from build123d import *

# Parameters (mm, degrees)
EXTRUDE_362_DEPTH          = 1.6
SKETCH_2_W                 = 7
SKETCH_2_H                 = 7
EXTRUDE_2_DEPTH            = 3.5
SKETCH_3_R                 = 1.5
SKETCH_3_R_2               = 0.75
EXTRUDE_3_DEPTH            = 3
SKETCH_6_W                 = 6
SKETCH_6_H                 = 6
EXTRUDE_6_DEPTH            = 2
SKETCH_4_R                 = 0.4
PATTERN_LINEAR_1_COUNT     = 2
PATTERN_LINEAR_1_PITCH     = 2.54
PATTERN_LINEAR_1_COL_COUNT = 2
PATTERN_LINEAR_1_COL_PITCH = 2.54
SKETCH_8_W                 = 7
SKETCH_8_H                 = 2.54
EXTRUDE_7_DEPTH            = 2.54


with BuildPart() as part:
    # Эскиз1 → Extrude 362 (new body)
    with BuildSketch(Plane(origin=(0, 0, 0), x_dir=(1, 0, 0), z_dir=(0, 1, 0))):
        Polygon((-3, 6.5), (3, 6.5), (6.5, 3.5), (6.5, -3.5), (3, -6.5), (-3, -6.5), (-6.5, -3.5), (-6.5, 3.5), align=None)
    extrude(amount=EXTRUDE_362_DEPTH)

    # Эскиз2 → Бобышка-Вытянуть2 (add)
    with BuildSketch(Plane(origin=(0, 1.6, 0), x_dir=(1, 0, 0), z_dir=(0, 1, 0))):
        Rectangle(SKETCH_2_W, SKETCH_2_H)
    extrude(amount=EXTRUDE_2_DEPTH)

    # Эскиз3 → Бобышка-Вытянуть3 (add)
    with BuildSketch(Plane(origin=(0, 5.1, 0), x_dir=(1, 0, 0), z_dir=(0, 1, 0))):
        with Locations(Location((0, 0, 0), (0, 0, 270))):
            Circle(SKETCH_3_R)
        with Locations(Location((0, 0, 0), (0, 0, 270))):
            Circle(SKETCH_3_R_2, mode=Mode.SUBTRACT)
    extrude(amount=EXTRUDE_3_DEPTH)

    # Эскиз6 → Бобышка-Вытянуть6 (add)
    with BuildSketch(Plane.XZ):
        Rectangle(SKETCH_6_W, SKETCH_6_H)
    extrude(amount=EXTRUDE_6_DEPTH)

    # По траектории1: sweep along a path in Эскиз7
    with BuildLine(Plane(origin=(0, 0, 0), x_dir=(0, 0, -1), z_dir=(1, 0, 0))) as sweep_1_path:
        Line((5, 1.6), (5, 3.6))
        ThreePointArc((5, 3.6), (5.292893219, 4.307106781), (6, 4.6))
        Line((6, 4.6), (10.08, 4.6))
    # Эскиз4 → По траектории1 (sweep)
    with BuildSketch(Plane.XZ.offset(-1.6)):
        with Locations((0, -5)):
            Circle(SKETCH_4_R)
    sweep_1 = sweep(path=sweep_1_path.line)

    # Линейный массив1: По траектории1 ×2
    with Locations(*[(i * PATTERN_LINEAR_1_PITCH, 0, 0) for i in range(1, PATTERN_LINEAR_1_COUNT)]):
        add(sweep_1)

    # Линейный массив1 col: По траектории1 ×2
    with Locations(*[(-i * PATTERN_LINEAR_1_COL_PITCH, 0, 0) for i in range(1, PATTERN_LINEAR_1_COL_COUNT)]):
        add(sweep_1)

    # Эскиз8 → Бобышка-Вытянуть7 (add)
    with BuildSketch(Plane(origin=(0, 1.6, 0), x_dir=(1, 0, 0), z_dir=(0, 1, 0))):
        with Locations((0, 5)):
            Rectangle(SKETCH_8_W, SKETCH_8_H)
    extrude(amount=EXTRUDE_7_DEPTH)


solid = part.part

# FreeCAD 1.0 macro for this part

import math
import FreeCAD as App
import Part
import Sketcher

V = App.Vector

doc = App.newDocument("Part")
params = doc.addObject("Spreadsheet::Sheet", "Params")
for row, (alias, value) in enumerate([
    ("sketch1_width", "6 mm"),
    ("sketch1_height", "7 mm"),
    ("pad1_length", "1.6 mm"),
    ("sketch2_width", "7 mm"),
    ("pad2_length", "3.5 mm"),
    ("sketch3_diameter", "3 mm"),
    ("sketch3_diameter2", "1.5 mm"),
    ("pad3_length", "3 mm"),
    ("sketch4_width", "6 mm"),
    ("pad4_length", "2 mm"),
    ("sketch5_diameter", "0.8 mm"),
    ("sketch6_radius", "1 mm"),
    ("sketch6_width", "2 mm"),
    ("sketch6_height", "4.08 mm"),
    ("linearpattern_pitch", "2.54 mm"),
    ("linearpattern2_pitch", "2.54 mm"),
    ("sketch7_width", "7 mm"),
    ("sketch7_height", "2.54 mm"),
    ("pad5_length", "2.54 mm"),
], start=1):
    params.set(f"A{row}", alias)
    params.set(f"B{row}", "=" + value)
    params.setAlias(f"B{row}", alias)

body = doc.addObject("PartDesign::Body", "Body")

# Sketch on XZ plane
sketch1 = body.newObject("Sketcher::SketchObject", "Sketch")
sketch1.AttachmentSupport = (doc.getObject("XZ_Plane"), [""])
sketch1.MapMode = "FlatFace"
sketch1.addGeometry(Part.LineSegment(V(3, -6.5, 0), V(-3, -6.5, 0)), False)
sketch1.addGeometry(Part.LineSegment(V(-3, -6.5, 0), V(-6.5, -3.5, 0)), False)
sketch1.addGeometry(Part.LineSegment(V(-6.5, -3.5, 0), V(-6.5, 3.5, 0)), False)
sketch1.addGeometry(Part.LineSegment(V(-6.5, 3.5, 0), V(-3, 6.5, 0)), False)
sketch1.addGeometry(Part.LineSegment(V(-3, 6.5, 0), V(3, 6.5, 0)), False)
sketch1.addGeometry(Part.LineSegment(V(3, 6.5, 0), V(6.5, 3.5, 0)), False)
sketch1.addGeometry(Part.LineSegment(V(6.5, 3.5, 0), V(6.5, -3.5, 0)), False)
sketch1.addGeometry(Part.LineSegment(V(6.5, -3.5, 0), V(3, -6.5, 0)), False)
sketch1.addConstraint(Sketcher.Constraint("Coincident", 0, 2, 1, 1))
sketch1.addConstraint(Sketcher.Constraint("Coincident", 1, 2, 2, 1))
sketch1.addConstraint(Sketcher.Constraint("Coincident", 2, 2, 3, 1))
sketch1.addConstraint(Sketcher.Constraint("Coincident", 3, 2, 4, 1))
sketch1.addConstraint(Sketcher.Constraint("Coincident", 4, 2, 5, 1))
sketch1.addConstraint(Sketcher.Constraint("Coincident", 5, 2, 6, 1))
sketch1.addConstraint(Sketcher.Constraint("Coincident", 6, 2, 7, 1))
sketch1.addConstraint(Sketcher.Constraint("Coincident", 7, 2, 0, 1))
sketch1.addConstraint(Sketcher.Constraint("Horizontal", 0))
sketch1.addConstraint(Sketcher.Constraint("Vertical", 2))
sketch1.addConstraint(Sketcher.Constraint("Horizontal", 4))
sketch1.addConstraint(Sketcher.Constraint("Vertical", 6))
sketch1.addConstraint(Sketcher.Constraint("Symmetric", 0, 2, 4, 2, -1, 1))
sketch1.addConstraint(Sketcher.Constraint("Symmetric", 1, 2, 5, 2, -1, 1))
sketch1.addConstraint(Sketcher.Constraint("Parallel", 3, 7))
sketch1.addConstraint(Sketcher.Constraint("Horizontal", 2, 2, 5, 2))
sketch1.addConstraint(Sketcher.Constraint("Horizontal", 1, 2, 6, 2))
sketch1.addConstraint(Sketcher.Constraint("Vertical", 0, 2, 3, 2))
sketch1.addConstraint(Sketcher.Constraint("DistanceX", 0, 2, 0, 1, 6.0))
sketch1.addConstraint(Sketcher.Constraint("DistanceY", 2, 1, 2, 2, 7.0))
sketch1.addConstraint(Sketcher.Constraint("DistanceY", 0, 2, 1, 2, 3.0))
sketch1.addConstraint(Sketcher.Constraint("DistanceX", 2, 2, 5, 2, 13.0))
sketch1.setExpression("Constraints[18]", "Params.sketch1_width")
sketch1.setExpression("Constraints[19]", "Params.sketch1_height")
pad1 = body.newObject("PartDesign::Pad", "Pad")
pad1.Profile = sketch1
pad1.setExpression("Length", "Params.pad1_length")
pad1.Reversed = True

# Sketch on XZ plane
sketch2 = body.newObject("Sketcher::SketchObject", "Sketch001")
sketch2.AttachmentSupport = (doc.getObject("XZ_Plane"), [""])
sketch2.MapMode = "FlatFace"
sketch2.AttachmentOffset = App.Placement(V(0, 0, -1.6), App.Rotation())
sketch2.addGeometry(Part.LineSegment(V(-4, -4, 0), V(-4, 4, 0)), False)
sketch2.addGeometry(Part.LineSegment(V(-4, 4, 0), V(4, 4, 0)), False)
sketch2.addGeometry(Part.LineSegment(V(4, 4, 0), V(4, -4, 0)), False)
sketch2.addGeometry(Part.LineSegment(V(4, -4, 0), V(-4, -4, 0)), False)
sketch2.addConstraint(Sketcher.Constraint("Coincident", 0, 2, 1, 1))
sketch2.addConstraint(Sketcher.Constraint("Coincident", 1, 2, 2, 1))
sketch2.addConstraint(Sketcher.Constraint("Coincident", 2, 2, 3, 1))
sketch2.addConstraint(Sketcher.Constraint("Coincident", 3, 2, 0, 1))
sketch2.addConstraint(Sketcher.Constraint("Vertical", 0))
sketch2.addConstraint(Sketcher.Constraint("Horizontal", 1))
sketch2.addConstraint(Sketcher.Constraint("Vertical", 2))
sketch2.addConstraint(Sketcher.Constraint("Horizontal", 3))
sketch2.addConstraint(Sketcher.Constraint("Symmetric", 0, 2, 2, 2, -1, 1))
sketch2.addConstraint(Sketcher.Constraint("Equal", 3, 0))
sketch2.addConstraint(Sketcher.Constraint("DistanceX", 1, 1, 1, 2, 7.0))
sketch2.setExpression("Constraints[10]", "Params.sketch2_width")
pad2 = body.newObject("PartDesign::Pad", "Pad001")
pad2.Profile = sketch2
pad2.setExpression("Length", "Params.pad2_length")
pad2.Reversed = True

# Sketch on XZ plane
sketch3 = body.newObject("Sketcher::SketchObject", "Sketch002")
sketch3.AttachmentSupport = (doc.getObject("XZ_Plane"), [""])
sketch3.MapMode = "FlatFace"
sketch3.AttachmentOffset = App.Placement(V(0, 0, -5.1), App.Rotation())
sketch3.addGeometry(Part.Circle(V(0, 0, 0), V(0, 0, 1), 1.5), False)
sketch3.addGeometry(Part.Circle(V(0, 0, 0), V(0, 0, 1), 0.8), False)
sketch3.addConstraint(Sketcher.Constraint("Coincident", 0, 3, -1, 1))
sketch3.addConstraint(Sketcher.Constraint("Coincident", 1, 3, -1, 1))
sketch3.addConstraint(Sketcher.Constraint("Diameter", 0, 3.0))
sketch3.addConstraint(Sketcher.Constraint("Diameter", 1, 1.5))
sketch3.setExpression("Constraints[2]", "Params.sketch3_diameter")
sketch3.setExpression("Constraints[3]", "Params.sketch3_diameter2")
pad3 = body.newObject("PartDesign::Pad", "Pad002")
pad3.Profile = sketch3
pad3.setExpression("Length", "Params.pad3_length")
pad3.Reversed = True

# Sketch on XZ plane
sketch4 = body.newObject("Sketcher::SketchObject", "Sketch003")
sketch4.AttachmentSupport = (doc.getObject("XZ_Plane"), [""])
sketch4.MapMode = "FlatFace"
sketch4.addGeometry(Part.LineSegment(V(-3, 3, 0), V(-3, -3, 0)), False)
sketch4.addGeometry(Part.LineSegment(V(-3, -3, 0), V(3, -3, 0)), False)
sketch4.addGeometry(Part.LineSegment(V(3, -3, 0), V(3, 3, 0)), False)
sketch4.addGeometry(Part.LineSegment(V(3, 3, 0), V(-3, 3, 0)), False)
sketch4.addConstraint(Sketcher.Constraint("Coincident", 0, 2, 1, 1))
sketch4.addConstraint(Sketcher.Constraint("Coincident", 1, 2, 2, 1))
sketch4.addConstraint(Sketcher.Constraint("Coincident", 2, 2, 3, 1))
sketch4.addConstraint(Sketcher.Constraint("Coincident", 3, 2, 0, 1))
sketch4.addConstraint(Sketcher.Constraint("Vertical", 0))
sketch4.addConstraint(Sketcher.Constraint("Horizontal", 1))
sketch4.addConstraint(Sketcher.Constraint("Vertical", 2))
sketch4.addConstraint(Sketcher.Constraint("Horizontal", 3))
sketch4.addConstraint(Sketcher.Constraint("Symmetric", 0, 2, 2, 2, -1, 1))
sketch4.addConstraint(Sketcher.Constraint("Equal", 3, 0))
sketch4.addConstraint(Sketcher.Constraint("DistanceX", 1, 1, 1, 2, 6.0))
sketch4.setExpression("Constraints[10]", "Params.sketch4_width")
pad4 = body.newObject("PartDesign::Pad", "Pad003")
pad4.Profile = sketch4
pad4.setExpression("Length", "Params.pad4_length")

# Sketch on XZ plane
sketch5 = body.newObject("Sketcher::SketchObject", "Sketch004")
sketch5.AttachmentSupport = (doc.getObject("XZ_Plane"), [""])
sketch5.MapMode = "FlatFace"
sketch5.AttachmentOffset = App.Placement(V(0, 0, -1.6), App.Rotation())
sketch5.addGeometry(Part.Circle(V(0, -5, 0), V(0, 0, 1), 0.4), False)
sketch5.addConstraint(Sketcher.Constraint("PointOnObject", 0, 3, -2))
sketch5.addConstraint(Sketcher.Constraint("Diameter", 0, 0.8))
sketch5.addConstraint(Sketcher.Constraint("DistanceY", 0, 3, -1, 1, 5.0))
sketch5.setExpression("Constraints[1]", "Params.sketch5_diameter")

# Sketch on YZ plane
sketch6 = body.newObject("Sketcher::SketchObject", "Sketch005")
sketch6.AttachmentSupport = (doc.getObject("YZ_Plane"), [""])
sketch6.MapMode = "FlatFace"
sketch6.addGeometry(Part.LineSegment(V(1.6, -5, 0), V(3.6, -5, 0)), False)
sketch6.addGeometry(Part.ArcOfCircle(Part.Circle(V(3.6, -6, 0), V(0, 0, 1), 1), math.radians(0), math.radians(90)), False)
sketch6.addGeometry(Part.LineSegment(V(4.6, -6, 0), V(4.6, -10.1, 0)), False)
sketch6.addConstraint(Sketcher.Constraint("Tangent", 0, 2, 1, 2))
sketch6.addConstraint(Sketcher.Constraint("Tangent", 1, 1, 2, 1))
sketch6.addConstraint(Sketcher.Constraint("Horizontal", 0))
sketch6.addConstraint(Sketcher.Constraint("Vertical", 2))
sketch6.addConstraint(Sketcher.Constraint("Radius", 1, 1.0))
sketch6.addConstraint(Sketcher.Constraint("DistanceX", 0, 1, 0, 2, 2.0))
sketch6.addConstraint(Sketcher.Constraint("DistanceY", 1, 3, -1, 1, 6.0))
sketch6.addConstraint(Sketcher.Constraint("DistanceY", 2, 2, 2, 1, 4.08))
sketch6.addConstraint(Sketcher.Constraint("DistanceX", -1, 1, 1, 3, 3.6))
sketch6.setExpression("Constraints[4]", "Params.sketch6_radius")
sketch6.setExpression("Constraints[5]", "Params.sketch6_width")
sketch6.setExpression("Constraints[7]", "Params.sketch6_height")
doc.recompute()

additivepipe = body.newObject("PartDesign::AdditivePipe", "AdditivePipe")
additivepipe.Profile = sketch5
additivepipe.Spine = (sketch6, ["Edge1", "Edge2", "Edge3"])
doc.recompute()

linearpattern = body.newObject("PartDesign::LinearPattern", "LinearPattern")
linearpattern.Originals = [additivepipe]
linearpattern.Direction = (doc.getObject("X_Axis"), [""])
linearpattern.Mode = "offset"
linearpattern.setExpression("Offset", "Params.linearpattern_pitch")
linearpattern.Occurrences = 2
body.Tip = linearpattern
doc.recompute()

linearpattern2 = body.newObject("PartDesign::LinearPattern", "LinearPattern001")
linearpattern2.Originals = [additivepipe]
linearpattern2.Direction = (doc.getObject("X_Axis"), [""])
linearpattern2.Mode = "offset"
linearpattern2.setExpression("Offset", "Params.linearpattern2_pitch")
linearpattern2.Occurrences = 2
linearpattern2.Reversed = True
body.Tip = linearpattern2

# Sketch on XZ plane
sketch7 = body.newObject("Sketcher::SketchObject", "Sketch006")
sketch7.AttachmentSupport = (doc.getObject("XZ_Plane"), [""])
sketch7.MapMode = "FlatFace"
sketch7.AttachmentOffset = App.Placement(V(0, 0, -1.6), App.Rotation())
sketch7.addGeometry(Part.LineSegment(V(-3.5, -6.3, 0), V(-3.5, -3.7, 0)), False)
sketch7.addGeometry(Part.LineSegment(V(-3.5, -3.7, 0), V(3.5, -3.7, 0)), False)
sketch7.addGeometry(Part.LineSegment(V(3.5, -3.7, 0), V(3.5, -6.3, 0)), False)
sketch7.addGeometry(Part.LineSegment(V(3.5, -6.3, 0), V(-3.5, -6.3, 0)), False)
sketch7.addConstraint(Sketcher.Constraint("Coincident", 0, 2, 1, 1))
sketch7.addConstraint(Sketcher.Constraint("Coincident", 1, 2, 2, 1))
sketch7.addConstraint(Sketcher.Constraint("Coincident", 2, 2, 3, 1))
sketch7.addConstraint(Sketcher.Constraint("Coincident", 3, 2, 0, 1))
sketch7.addConstraint(Sketcher.Constraint("Vertical", 0))
sketch7.addConstraint(Sketcher.Constraint("Horizontal", 1))
sketch7.addConstraint(Sketcher.Constraint("Vertical", 2))
sketch7.addConstraint(Sketcher.Constraint("Horizontal", 3))
sketch7.addConstraint(Sketcher.Constraint("DistanceX", 1, 1, 1, 2, 7.0))
sketch7.addConstraint(Sketcher.Constraint("DistanceY", 0, 1, 0, 2, 2.54))
sketch7.addConstraint(Sketcher.Constraint("DistanceX", 0, 2, -1, 1, 3.5))
sketch7.addConstraint(Sketcher.Constraint("DistanceY", 0, 2, -1, 1, 3.73))
sketch7.setExpression("Constraints[8]", "Params.sketch7_width")
sketch7.setExpression("Constraints[9]", "Params.sketch7_height")
pad5 = body.newObject("PartDesign::Pad", "Pad004")
pad5.Profile = sketch7
pad5.setExpression("Length", "Params.pad5_length")
pad5.Reversed = True

doc.recompute()
